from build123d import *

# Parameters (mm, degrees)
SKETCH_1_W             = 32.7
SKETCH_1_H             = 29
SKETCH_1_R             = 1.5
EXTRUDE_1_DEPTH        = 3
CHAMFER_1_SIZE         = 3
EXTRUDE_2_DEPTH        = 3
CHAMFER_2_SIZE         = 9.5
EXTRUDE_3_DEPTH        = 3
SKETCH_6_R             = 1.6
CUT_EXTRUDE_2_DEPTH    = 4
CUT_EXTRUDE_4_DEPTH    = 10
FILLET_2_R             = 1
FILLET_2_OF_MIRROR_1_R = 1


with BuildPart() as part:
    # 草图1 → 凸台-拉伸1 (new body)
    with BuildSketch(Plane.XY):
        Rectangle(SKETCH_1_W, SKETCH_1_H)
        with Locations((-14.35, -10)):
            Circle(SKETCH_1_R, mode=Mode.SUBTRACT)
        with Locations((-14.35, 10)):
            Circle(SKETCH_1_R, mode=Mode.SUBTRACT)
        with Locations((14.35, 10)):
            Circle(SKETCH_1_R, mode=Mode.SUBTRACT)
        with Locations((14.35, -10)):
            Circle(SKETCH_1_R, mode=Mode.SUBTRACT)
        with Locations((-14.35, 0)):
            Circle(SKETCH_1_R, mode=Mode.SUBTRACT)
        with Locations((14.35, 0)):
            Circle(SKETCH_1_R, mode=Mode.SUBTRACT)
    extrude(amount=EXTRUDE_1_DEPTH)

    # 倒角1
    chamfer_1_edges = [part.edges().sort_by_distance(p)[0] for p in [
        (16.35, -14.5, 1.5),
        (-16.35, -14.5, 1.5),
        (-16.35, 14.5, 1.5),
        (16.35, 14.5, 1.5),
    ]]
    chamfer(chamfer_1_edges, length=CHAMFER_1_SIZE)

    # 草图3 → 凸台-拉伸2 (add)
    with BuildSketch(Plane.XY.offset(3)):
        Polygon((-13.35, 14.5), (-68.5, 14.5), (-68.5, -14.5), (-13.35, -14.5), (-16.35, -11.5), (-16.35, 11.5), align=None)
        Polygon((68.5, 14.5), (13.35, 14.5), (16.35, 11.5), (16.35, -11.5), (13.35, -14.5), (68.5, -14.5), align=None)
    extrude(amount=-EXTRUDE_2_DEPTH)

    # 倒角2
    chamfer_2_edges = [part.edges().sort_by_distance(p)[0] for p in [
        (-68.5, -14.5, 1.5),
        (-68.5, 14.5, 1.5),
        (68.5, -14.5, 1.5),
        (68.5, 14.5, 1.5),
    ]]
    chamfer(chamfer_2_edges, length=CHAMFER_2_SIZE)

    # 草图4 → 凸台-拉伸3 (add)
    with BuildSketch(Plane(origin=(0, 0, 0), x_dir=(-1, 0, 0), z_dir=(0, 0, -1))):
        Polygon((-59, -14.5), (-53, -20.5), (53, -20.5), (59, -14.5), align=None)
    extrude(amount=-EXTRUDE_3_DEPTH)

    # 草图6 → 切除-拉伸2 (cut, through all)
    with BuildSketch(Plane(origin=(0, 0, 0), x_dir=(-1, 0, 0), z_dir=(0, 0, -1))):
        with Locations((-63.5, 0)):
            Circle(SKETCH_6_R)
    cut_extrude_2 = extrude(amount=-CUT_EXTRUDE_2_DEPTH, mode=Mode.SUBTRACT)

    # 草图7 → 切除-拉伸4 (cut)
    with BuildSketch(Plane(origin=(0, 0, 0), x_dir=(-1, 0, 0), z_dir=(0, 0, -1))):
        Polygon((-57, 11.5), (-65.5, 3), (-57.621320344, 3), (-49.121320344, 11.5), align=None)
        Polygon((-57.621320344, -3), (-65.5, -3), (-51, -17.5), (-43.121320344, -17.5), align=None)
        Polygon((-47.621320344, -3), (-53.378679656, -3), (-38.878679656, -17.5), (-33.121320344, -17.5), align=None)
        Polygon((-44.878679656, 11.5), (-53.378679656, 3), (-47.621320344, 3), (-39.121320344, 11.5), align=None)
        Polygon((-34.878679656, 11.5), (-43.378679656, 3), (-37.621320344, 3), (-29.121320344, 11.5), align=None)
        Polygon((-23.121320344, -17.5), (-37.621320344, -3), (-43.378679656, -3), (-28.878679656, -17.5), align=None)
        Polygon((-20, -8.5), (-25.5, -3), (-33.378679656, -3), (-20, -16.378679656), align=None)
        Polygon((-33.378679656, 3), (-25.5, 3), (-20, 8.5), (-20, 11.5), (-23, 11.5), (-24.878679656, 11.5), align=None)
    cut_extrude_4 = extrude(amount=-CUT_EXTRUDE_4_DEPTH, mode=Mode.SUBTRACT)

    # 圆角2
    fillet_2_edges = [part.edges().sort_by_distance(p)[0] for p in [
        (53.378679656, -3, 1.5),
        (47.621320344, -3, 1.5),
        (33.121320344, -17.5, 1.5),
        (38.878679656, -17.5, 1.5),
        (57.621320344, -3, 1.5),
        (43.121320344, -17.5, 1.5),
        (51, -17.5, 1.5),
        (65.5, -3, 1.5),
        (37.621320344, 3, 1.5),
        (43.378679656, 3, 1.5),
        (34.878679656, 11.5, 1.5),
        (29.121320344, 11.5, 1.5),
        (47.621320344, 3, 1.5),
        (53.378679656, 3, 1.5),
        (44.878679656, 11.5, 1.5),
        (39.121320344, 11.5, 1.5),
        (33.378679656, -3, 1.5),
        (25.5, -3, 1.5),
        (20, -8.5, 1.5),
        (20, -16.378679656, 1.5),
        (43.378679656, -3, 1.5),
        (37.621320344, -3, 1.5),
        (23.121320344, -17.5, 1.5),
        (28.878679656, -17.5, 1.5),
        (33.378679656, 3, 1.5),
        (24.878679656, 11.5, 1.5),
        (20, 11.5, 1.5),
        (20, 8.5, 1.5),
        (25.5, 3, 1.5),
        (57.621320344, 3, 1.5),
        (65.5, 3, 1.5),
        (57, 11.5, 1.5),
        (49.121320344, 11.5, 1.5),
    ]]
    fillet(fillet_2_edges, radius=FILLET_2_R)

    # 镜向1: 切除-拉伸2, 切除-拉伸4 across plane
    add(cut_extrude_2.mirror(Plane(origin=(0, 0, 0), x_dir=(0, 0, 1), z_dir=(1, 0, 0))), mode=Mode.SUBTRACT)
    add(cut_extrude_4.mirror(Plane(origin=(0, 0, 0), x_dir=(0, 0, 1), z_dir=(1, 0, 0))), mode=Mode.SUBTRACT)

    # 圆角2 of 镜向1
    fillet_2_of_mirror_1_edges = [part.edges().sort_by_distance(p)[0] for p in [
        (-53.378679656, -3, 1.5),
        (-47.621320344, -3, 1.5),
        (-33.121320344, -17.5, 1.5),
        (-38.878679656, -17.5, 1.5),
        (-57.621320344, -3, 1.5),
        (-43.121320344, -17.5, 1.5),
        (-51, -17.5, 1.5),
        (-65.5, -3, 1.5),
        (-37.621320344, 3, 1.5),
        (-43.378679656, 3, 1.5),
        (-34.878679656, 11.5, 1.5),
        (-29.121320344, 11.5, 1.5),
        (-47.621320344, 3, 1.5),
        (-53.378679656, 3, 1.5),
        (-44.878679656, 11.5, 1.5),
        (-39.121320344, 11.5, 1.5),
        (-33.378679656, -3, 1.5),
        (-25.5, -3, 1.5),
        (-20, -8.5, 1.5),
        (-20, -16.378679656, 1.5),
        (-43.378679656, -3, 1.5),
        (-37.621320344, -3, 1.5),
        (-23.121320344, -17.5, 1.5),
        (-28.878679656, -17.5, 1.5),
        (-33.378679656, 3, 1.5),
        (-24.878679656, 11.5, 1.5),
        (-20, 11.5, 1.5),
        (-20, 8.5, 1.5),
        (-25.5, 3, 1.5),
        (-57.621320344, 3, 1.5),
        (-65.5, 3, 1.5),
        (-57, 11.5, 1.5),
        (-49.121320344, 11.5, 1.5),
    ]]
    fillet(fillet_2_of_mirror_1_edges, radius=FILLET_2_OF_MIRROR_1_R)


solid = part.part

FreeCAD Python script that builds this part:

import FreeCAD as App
import Part
import Sketcher

V = App.Vector


def edges_at(feature, points):
    """Names of the edges that pass closest to the given points."""
    edges = feature.Shape.Edges
    near = lambda p: min(range(len(edges)), key=lambda i: edges[i].distToShape(Part.Vertex(*p))[0])
    return sorted({f"Edge{near(p) + 1}" for p in points})


def add_polygon(sketch, points):
    """Adds a closed chain of lines whose ends are joined by coincident constraints."""
    first, n = sketch.GeometryCount, len(points)
    for a, b in zip(points, points[1:] + points[:1]):
        sketch.addGeometry(Part.LineSegment(App.Vector(*a, 0), App.Vector(*b, 0)), False)
    for i in range(n):
        sketch.addConstraint(Sketcher.Constraint("Coincident", first + i, 2, first + (i + 1) % n, 1))

doc = App.newDocument("Part")
body = doc.addObject("PartDesign::Body", "Body")

sketch1 = body.newObject("Sketcher::SketchObject", "Sketch")
sketch1.AttachmentSupport = (doc.getObject("XY_Plane"), [""])
sketch1.MapMode = "FlatFace"
add_polygon(sketch1, [(-16.4, 14.5), (-16.4, -14.5), (16.4, -14.5), (16.4, 14.5)])
sketch1.addGeometry(Part.Circle(V(-14.3, -10, 0), V(0, 0, 1), 1.5), False)
sketch1.addGeometry(Part.Circle(V(14.3, -10, 0), V(0, 0, 1), 1.5), False)
sketch1.addGeometry(Part.Circle(V(-14.3, 0, 0), V(0, 0, 1), 1.5), False)
sketch1.addGeometry(Part.Circle(V(-14.3, 10, 0), V(0, 0, 1), 1.5), False)
sketch1.addGeometry(Part.Circle(V(14.3, 0, 0), V(0, 0, 1), 1.5), False)
sketch1.addGeometry(Part.Circle(V(14.3, 10, 0), V(0, 0, 1), 1.5), False)
sketch1.addConstraint([
    Sketcher.Constraint("Vertical", 0),
    Sketcher.Constraint("Horizontal", 1),
    Sketcher.Constraint("Vertical", 2),
    Sketcher.Constraint("Horizontal", 3),
    Sketcher.Constraint("Equal", 4, 5),
    Sketcher.Constraint("Equal", 5, 6),
    Sketcher.Constraint("Equal", 6, 7),
    Sketcher.Constraint("Equal", 7, 8),
    Sketcher.Constraint("Equal", 8, 9),
    Sketcher.Constraint("Symmetric", 5, 3, 7, 3, -1, 1),
    Sketcher.Constraint("Symmetric", 6, 3, 8, 3, -1, 1),
    Sketcher.Constraint("Symmetric", 4, 3, 9, 3, -1, 1),
    Sketcher.Constraint("Symmetric", 0, 2, 2, 2, -1, 1),
    Sketcher.Constraint("Symmetric", 4, 3, 5, 3, -2),
    Sketcher.Constraint("PointOnObject", 6, 3, -1),
    Sketcher.Constraint("Vertical", 4, 3, 6, 3),
    Sketcher.Constraint("Diameter", 4, 3.0),
    Sketcher.Constraint("DistanceY", 0, 2, 0, 1, 29.0),
    Sketcher.Constraint("DistanceX", 1, 1, 1, 2, 32.7),
    Sketcher.Constraint("DistanceY", 4, 3, -1, 1, 10.0),
    Sketcher.Constraint("DistanceX", 0, 2, 4, 3, 2.0),
])
pad1 = body.newObject("PartDesign::Pad", "Pad")
pad1.Profile = sketch1
pad1.Length = 3
doc.recompute()

chamfer = body.newObject("PartDesign::Chamfer", "Chamfer")
chamfer.Base = (pad1, edges_at(pad1, [
    (16.35, -14.5, 1.5),
    (-16.35, -14.5, 1.5),
    (-16.35, 14.5, 1.5),
    (16.35, 14.5, 1.5),
]))
chamfer.Size = 3

sketch2 = body.newObject("Sketcher::SketchObject", "Sketch001")
sketch2.AttachmentSupport = (doc.getObject("XY_Plane"), [""])
sketch2.MapMode = "FlatFace"
sketch2.AttachmentOffset = App.Placement(V(0, 0, 3), App.Rotation())
add_polygon(sketch2, [(-13.3, 14.5), (-68.5, 14.5), (-68.5, -14.5), (-13.3, -14.5), (-16.4, -11.5), (-16.4, 11.5)])
add_polygon(sketch2, [(68.5, 14.5), (13.3, 14.5), (16.4, 11.5), (16.4, -11.5), (13.3, -14.5), (68.5, -14.5)])
sketch2.addConstraint([
    Sketcher.Constraint("Horizontal", 0),
    Sketcher.Constraint("Vertical", 1),
    Sketcher.Constraint("Horizontal", 2),
    Sketcher.Constraint("Vertical", 4),
    Sketcher.Constraint("Horizontal", 6),
    Sketcher.Constraint("Vertical", 8),
    Sketcher.Constraint("Horizontal", 10),
    Sketcher.Constraint("Vertical", 11),
    Sketcher.Constraint("Symmetric", 2, 2, 6, 2, -1, 1),
    Sketcher.Constraint("Symmetric", 3, 2, 7, 2, -1, 1),
    Sketcher.Constraint("Symmetric", 5, 2, 9, 2, -1, 1),
    Sketcher.Constraint("Symmetric", 5, 2, 6, 2, -2),
    Sketcher.Constraint("Perpendicular", 3, 5),
    Sketcher.Constraint("Perpendicular", 7, 9),
    Sketcher.Constraint("Horizontal", 4, 2, 7, 2),
    Sketcher.Constraint("Equal", 2, 6),
    Sketcher.Constraint("DistanceY", 1, 2, 1, 1, 29.0),
    Sketcher.Constraint("DistanceY", 4, 1, 4, 2, 23.0),
    Sketcher.Constraint("DistanceX", 0, 2, 0, 1, 55.15),
    Sketcher.Constraint("DistanceX", 0, 2, -1, 1, 68.5),
])
pad2 = body.newObject("PartDesign::Pad", "Pad001")
pad2.Profile = sketch2
pad2.Length = 3
pad2.Reversed = True
doc.recompute()

chamfer2 = body.newObject("PartDesign::Chamfer", "Chamfer001")
chamfer2.Base = (pad2, edges_at(pad2, [
    (-68.5, -14.5, 1.5),
    (-68.5, 14.5, 1.5),
    (68.5, -14.5, 1.5),
    (68.5, 14.5, 1.5),
]))
chamfer2.Size = 9.5

sketch3 = body.newObject("Sketcher::SketchObject", "Sketch002")
sketch3.AttachmentSupport = (doc.getObject("XY_Plane"), [""])
sketch3.MapMode = "FlatFace"
add_polygon(sketch3, [(59, -14), (53, -20), (-53, -20), (-59, -14)])
sketch3.addConstraint([
    Sketcher.Constraint("Horizontal", 1),
    Sketcher.Constraint("Horizontal", 3),
    Sketcher.Constraint("Perpendicular", 0, 2),
    Sketcher.Constraint("Equal", 0, 2),
    Sketcher.Constraint("DistanceX", 1, 2, 1, 1, 106.0),
    Sketcher.Constraint("DistanceX", 3, 1, 3, 2, 118.0),
    Sketcher.Constraint("DistanceX", -1, 1, 0, 2, 53.0),
    Sketcher.Constraint("DistanceY", 0, 2, -1, 1, 20.5),
])
pad3 = body.newObject("PartDesign::Pad", "Pad002")
pad3.Profile = sketch3
pad3.Length = 3

sketch4 = body.newObject("Sketcher::SketchObject", "Sketch003")
sketch4.AttachmentSupport = (doc.getObject("XY_Plane"), [""])
sketch4.MapMode = "FlatFace"
sketch4.addGeometry(Part.Circle(V(63.5, 0, 0), V(0, 0, 1), 1.6), False)
sketch4.addConstraint([
    Sketcher.Constraint("PointOnObject", 0, 3, -1),
    Sketcher.Constraint("Diameter", 0, 3.2),
    Sketcher.Constraint("DistanceX", -1, 1, 0, 3, 63.5),
])
pocket1 = body.newObject("PartDesign::Pocket", "Pocket")
pocket1.Profile = sketch4
pocket1.Type = "ThroughAll"
pocket1.Reversed = True

sketch5 = body.newObject("Sketcher::SketchObject", "Sketch004")
sketch5.AttachmentSupport = (doc.getObject("XY_Plane"), [""])
sketch5.MapMode = "FlatFace"
add_polygon(sketch5, [(57, 11.5), (65.5, 3), (57.6, 3), (49.1, 11.5)])
add_polygon(sketch5, [(57.6, -3), (65.5, -3), (51, -17.5), (43.1, -17.5)])
add_polygon(sketch5, [(47.6, -3), (53.4, -3), (38.9, -17.5), (33.1, -17.5)])
add_polygon(sketch5, [(44.9, 11.5), (53.4, 3), (47.6, 3), (39.1, 11.5)])
add_polygon(sketch5, [(34.9, 11.5), (43.4, 3), (37.6, 3), (29.1, 11.5)])
add_polygon(sketch5, [(23.1, -17.5), (37.6, -3), (43.4, -3), (28.9, -17.5)])
add_polygon(sketch5, [(20, -8.5), (25.5, -3), (33.4, -3), (20, -16.4)])
add_polygon(sketch5, [(33.4, 3), (25.5, 3), (20, 8.5), (20, 11.5), (24.9, 11.5)])
sketch5.addConstraint([
    Sketcher.Constraint("Horizontal", 1),
    Sketcher.Constraint("Horizontal", 3),
    Sketcher.Constraint("Horizontal", 4),
    Sketcher.Constraint("Horizontal", 6),
    Sketcher.Constraint("Horizontal", 8),
    Sketcher.Constraint("Horizontal", 10),
    Sketcher.Constraint("Horizontal", 13),
    Sketcher.Constraint("Horizontal", 15),
    Sketcher.Constraint("Horizontal", 17),
    Sketcher.Constraint("Horizontal", 19),
    Sketcher.Constraint("Horizontal", 21),
    Sketcher.Constraint("Horizontal", 23),
    Sketcher.Constraint("Horizontal", 25),
    Sketcher.Constraint("Vertical", 27),
    Sketcher.Constraint("Horizontal", 28),
    Sketcher.Constraint("Vertical", 30),
    Sketcher.Constraint("Horizontal", 31),
    Sketcher.Constraint("Symmetric", 0, 2, 4, 2, -1),
    Sketcher.Constraint("Symmetric", 8, 2, 12, 2, -1),
    Sketcher.Constraint("Symmetric", 17, 2, 20, 2, -1),
    Sketcher.Constraint("Symmetric", 24, 2, 28, 2, -1),
    Sketcher.Constraint("Symmetric", 27, 2, 29, 2, -1),
    Sketcher.Constraint("Parallel", 0, 2),
    Sketcher.Constraint("Perpendicular", 2, 5),
    Sketcher.Constraint("Parallel", 5, 7),
    Sketcher.Constraint("Parallel", 7, 9),
    Sketcher.Constraint("Parallel", 9, 11),
    Sketcher.Constraint("Perpendicular", 11, 12),
    Sketcher.Constraint("Parallel", 12, 14),
    Sketcher.Constraint("Parallel", 14, 16),
    Sketcher.Constraint("Parallel", 16, 18),
    Sketcher.Constraint("Perpendicular", 18, 20),
    Sketcher.Constraint("Parallel", 20, 22),
    Sketcher.Constraint("Parallel", 22, 24),
    Sketcher.Constraint("Parallel", 24, 26),
    Sketcher.Constraint("Perpendicular", 26, 29),
    Sketcher.Constraint("Parallel", 29, 32),
    Sketcher.Constraint("Horizontal", 7, 2, 8, 2),
    Sketcher.Constraint("Horizontal", 6, 2, 9, 2),
    Sketcher.Constraint("Horizontal", 3, 2, 14, 2),
    Sketcher.Constraint("Horizontal", 13, 2, 16, 2),
    Sketcher.Constraint("Horizontal", 15, 2, 18, 2),
    Sketcher.Constraint("Horizontal", 10, 2, 22, 2),
    Sketcher.Constraint("Horizontal", 21, 2, 24, 2),
    Sketcher.Constraint("Horizontal", 19, 2, 30, 2),
    Sketcher.Constraint("Vertical", 1, 2, 7, 2),
    Sketcher.Constraint("Vertical", 11, 2, 13, 2),
    Sketcher.Constraint("Vertical", 16, 2, 21, 2),
    Sketcher.Constraint("Vertical", 25, 2, 32, 2),
    Sketcher.Constraint("Equal", 15, 17),
    Sketcher.Constraint("Equal", 6, 25),
    Sketcher.Constraint("DistanceY", 30, 1, 30, 2, 3.0),
    Sketcher.Constraint("DistanceY", -1, 1, 0, 2, 3.0),
    Sketcher.Constraint("DistanceX", -1, 1, 3, 2, 57.0),
    Sketcher.Constraint("DistanceX", -1, 1, 5, 2, 51.0),
    Sketcher.Constraint("DistanceX", -1, 1, 26, 2, 20.0),
    Sketcher.Constraint("DistanceY", 5, 2, 2, 2, 29.0),
    Sketcher.Constraint("DistanceX", 10, 2, 6, 2, 10.0),
    Sketcher.Constraint("DistanceX", 16, 2, 12, 2, 10.0),
    Sketcher.Constraint("DistanceX", 25, 2, 21, 2, 10.0),
    Sketcher.Constraint("DistanceX", 1, 2, 1, 1, 7.87868),
])
pocket2 = body.newObject("PartDesign::Pocket", "Pocket001")
pocket2.Profile = sketch5
pocket2.Length = 10
pocket2.Reversed = True
doc.recompute()

fillet = body.newObject("PartDesign::Fillet", "Fillet")
fillet.Base = (pocket2, edges_at(pocket2, [
    (53.379, -3, 1.5),
    (47.621, -3, 1.5),
    (33.121, -17.5, 1.5),
    (38.879, -17.5, 1.5),
    (57.621, -3, 1.5),
    (43.121, -17.5, 1.5),
    (51, -17.5, 1.5),
    (65.5, -3, 1.5),
    (37.621, 3, 1.5),
    (43.379, 3, 1.5),
    (34.879, 11.5, 1.5),
    (29.121, 11.5, 1.5),
    (47.621, 3, 1.5),
    (53.379, 3, 1.5),
    (44.879, 11.5, 1.5),
    (39.121, 11.5, 1.5),
    (33.379, -3, 1.5),
    (25.5, -3, 1.5),
    (20, -8.5, 1.5),
    (20, -16.379, 1.5),
    (43.379, -3, 1.5),
    (37.621, -3, 1.5),
    (23.121, -17.5, 1.5),
    (28.879, -17.5, 1.5),
    (33.379, 3, 1.5),
    (24.879, 11.5, 1.5),
    (20, 11.5, 1.5),
    (20, 8.5, 1.5),
    (25.5, 3, 1.5),
    (57.621, 3, 1.5),
    (65.5, 3, 1.5),
    (57, 11.5, 1.5),
    (49.121, 11.5, 1.5),
]))
fillet.Radius = 1
doc.recompute()

mirrored = body.newObject("PartDesign::Mirrored", "Mirrored")
mirrored.Originals = [pocket1, pocket2]
mirrored.MirrorPlane = (doc.getObject("YZ_Plane"), [""])
body.Tip = mirrored
doc.recompute()

fillet2 = body.newObject("PartDesign::Fillet", "Fillet001")
fillet2.Base = (mirrored, edges_at(mirrored, [
    (-53.379, -3, 1.5),
    (-47.621, -3, 1.5),
    (-33.121, -17.5, 1.5),
    (-38.879, -17.5, 1.5),
    (-57.621, -3, 1.5),
    (-43.121, -17.5, 1.5),
    (-51, -17.5, 1.5),
    (-65.5, -3, 1.5),
    (-37.621, 3, 1.5),
    (-43.379, 3, 1.5),
    (-34.879, 11.5, 1.5),
    (-29.121, 11.5, 1.5),
    (-47.621, 3, 1.5),
    (-53.379, 3, 1.5),
    (-44.879, 11.5, 1.5),
    (-39.121, 11.5, 1.5),
    (-33.379, -3, 1.5),
    (-25.5, -3, 1.5),
    (-20, -8.5, 1.5),
    (-20, -16.379, 1.5),
    (-43.379, -3, 1.5),
    (-37.621, -3, 1.5),
    (-23.121, -17.5, 1.5),
    (-28.879, -17.5, 1.5),
    (-33.379, 3, 1.5),
    (-24.879, 11.5, 1.5),
    (-20, 11.5, 1.5),
    (-20, 8.5, 1.5),
    (-25.5, 3, 1.5),
    (-57.621, 3, 1.5),
    (-65.5, 3, 1.5),
    (-57, 11.5, 1.5),
    (-49.121, 11.5, 1.5),
]))
fillet2.Radius = 1

doc.recompute()
